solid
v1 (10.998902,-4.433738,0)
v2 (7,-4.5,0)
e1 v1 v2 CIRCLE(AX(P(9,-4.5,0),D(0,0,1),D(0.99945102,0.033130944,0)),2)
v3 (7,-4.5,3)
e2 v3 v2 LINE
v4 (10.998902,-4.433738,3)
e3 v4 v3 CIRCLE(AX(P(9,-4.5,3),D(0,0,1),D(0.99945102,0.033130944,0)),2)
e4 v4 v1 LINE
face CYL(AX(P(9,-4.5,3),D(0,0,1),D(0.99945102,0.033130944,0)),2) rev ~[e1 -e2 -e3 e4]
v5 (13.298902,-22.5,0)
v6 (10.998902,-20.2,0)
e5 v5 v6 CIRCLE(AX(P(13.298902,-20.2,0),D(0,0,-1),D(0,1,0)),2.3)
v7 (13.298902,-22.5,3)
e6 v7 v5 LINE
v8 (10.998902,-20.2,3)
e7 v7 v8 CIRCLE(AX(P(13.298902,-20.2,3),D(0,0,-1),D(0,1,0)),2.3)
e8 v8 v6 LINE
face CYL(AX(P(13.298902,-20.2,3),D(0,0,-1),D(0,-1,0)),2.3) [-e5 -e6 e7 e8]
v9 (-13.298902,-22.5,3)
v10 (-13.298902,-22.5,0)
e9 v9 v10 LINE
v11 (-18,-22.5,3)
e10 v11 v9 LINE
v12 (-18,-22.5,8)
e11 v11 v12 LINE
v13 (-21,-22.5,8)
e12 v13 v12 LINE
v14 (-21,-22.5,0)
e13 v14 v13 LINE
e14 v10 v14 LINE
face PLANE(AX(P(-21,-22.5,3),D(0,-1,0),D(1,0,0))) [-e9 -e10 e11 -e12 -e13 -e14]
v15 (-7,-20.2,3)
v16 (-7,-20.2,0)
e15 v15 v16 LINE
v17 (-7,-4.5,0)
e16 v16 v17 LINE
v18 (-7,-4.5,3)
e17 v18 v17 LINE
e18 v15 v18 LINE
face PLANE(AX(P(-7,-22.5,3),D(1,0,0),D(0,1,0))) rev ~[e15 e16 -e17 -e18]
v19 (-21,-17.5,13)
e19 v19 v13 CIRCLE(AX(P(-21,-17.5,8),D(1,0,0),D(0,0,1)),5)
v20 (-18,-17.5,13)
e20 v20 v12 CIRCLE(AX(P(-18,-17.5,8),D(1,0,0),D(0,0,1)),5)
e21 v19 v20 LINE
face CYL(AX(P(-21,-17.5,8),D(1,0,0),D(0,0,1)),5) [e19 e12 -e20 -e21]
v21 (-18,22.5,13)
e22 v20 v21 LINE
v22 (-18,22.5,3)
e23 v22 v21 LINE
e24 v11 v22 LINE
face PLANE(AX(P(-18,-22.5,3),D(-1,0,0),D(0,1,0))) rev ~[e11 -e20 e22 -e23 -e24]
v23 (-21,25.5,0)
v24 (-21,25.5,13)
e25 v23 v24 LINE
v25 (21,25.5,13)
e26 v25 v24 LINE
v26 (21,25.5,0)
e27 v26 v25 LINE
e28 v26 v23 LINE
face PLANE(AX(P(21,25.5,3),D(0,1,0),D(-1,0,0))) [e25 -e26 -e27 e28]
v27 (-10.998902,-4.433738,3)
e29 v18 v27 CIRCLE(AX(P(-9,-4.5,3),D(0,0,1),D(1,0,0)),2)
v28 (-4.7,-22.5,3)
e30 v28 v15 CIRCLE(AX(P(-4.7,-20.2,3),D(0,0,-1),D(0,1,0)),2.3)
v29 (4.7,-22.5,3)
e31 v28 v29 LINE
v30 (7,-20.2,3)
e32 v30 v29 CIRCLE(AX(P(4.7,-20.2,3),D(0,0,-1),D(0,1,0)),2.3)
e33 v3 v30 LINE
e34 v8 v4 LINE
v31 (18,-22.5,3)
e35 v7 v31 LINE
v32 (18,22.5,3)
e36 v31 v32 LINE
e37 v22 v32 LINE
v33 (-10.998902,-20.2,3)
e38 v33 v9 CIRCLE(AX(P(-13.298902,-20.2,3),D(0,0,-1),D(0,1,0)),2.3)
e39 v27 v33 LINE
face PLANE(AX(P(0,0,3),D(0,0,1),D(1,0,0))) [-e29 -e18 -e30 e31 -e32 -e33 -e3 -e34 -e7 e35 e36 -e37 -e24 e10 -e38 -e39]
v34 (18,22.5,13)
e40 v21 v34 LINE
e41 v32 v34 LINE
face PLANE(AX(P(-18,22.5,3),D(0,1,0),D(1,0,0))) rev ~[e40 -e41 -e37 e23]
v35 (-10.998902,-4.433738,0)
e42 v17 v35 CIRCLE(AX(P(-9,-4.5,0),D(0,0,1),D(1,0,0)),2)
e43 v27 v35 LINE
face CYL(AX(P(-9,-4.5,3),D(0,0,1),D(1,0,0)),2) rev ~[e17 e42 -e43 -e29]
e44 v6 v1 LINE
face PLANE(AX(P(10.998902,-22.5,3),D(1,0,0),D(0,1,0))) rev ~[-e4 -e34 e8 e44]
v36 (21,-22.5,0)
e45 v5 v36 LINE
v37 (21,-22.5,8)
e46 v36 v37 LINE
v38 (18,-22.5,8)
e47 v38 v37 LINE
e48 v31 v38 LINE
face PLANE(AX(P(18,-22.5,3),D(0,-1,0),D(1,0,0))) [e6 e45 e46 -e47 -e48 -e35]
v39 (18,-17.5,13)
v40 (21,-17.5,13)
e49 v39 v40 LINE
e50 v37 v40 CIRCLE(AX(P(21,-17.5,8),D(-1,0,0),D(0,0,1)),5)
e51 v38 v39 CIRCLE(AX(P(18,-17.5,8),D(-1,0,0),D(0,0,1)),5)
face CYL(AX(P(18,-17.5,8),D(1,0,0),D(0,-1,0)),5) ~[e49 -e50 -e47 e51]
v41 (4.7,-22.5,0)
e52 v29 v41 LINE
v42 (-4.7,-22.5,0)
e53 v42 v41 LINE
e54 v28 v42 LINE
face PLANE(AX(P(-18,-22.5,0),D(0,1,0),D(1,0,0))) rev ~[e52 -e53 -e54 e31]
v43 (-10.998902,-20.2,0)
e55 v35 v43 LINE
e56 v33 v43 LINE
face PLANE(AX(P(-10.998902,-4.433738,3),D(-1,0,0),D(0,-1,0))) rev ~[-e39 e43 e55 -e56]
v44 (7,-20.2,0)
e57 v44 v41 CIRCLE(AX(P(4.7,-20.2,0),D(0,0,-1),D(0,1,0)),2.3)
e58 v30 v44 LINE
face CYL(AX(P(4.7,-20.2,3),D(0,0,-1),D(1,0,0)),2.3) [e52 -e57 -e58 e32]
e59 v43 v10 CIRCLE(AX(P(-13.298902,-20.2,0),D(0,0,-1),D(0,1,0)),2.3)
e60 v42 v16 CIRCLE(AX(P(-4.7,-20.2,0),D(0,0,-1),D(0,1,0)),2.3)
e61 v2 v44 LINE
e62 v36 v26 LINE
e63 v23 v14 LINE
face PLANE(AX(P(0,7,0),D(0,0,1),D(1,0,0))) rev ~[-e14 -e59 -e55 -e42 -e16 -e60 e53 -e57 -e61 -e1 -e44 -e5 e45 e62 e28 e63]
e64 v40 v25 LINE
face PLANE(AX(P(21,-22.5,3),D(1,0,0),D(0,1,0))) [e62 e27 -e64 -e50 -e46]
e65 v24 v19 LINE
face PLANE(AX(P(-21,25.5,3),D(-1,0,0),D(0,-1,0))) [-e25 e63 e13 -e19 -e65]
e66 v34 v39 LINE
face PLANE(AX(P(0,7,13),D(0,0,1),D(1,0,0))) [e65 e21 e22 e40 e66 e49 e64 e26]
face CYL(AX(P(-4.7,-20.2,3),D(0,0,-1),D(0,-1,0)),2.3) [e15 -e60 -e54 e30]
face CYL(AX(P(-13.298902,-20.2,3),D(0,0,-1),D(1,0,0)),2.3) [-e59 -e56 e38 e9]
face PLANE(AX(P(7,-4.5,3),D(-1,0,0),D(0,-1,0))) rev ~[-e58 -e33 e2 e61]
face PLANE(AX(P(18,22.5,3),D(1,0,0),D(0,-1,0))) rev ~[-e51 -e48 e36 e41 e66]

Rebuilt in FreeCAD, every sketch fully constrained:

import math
import FreeCAD as App
import Part
import Sketcher
from FreeCAD import Vector
Q = App.Units.Quantity


def edges_at(feature, points):
    """Names of the edges that pass closest to the given points."""
    edges = feature.Shape.Edges
    near = lambda p: min(range(len(edges)), key=lambda i: edges[i].distToShape(Part.Vertex(*p))[0])
    return sorted({f"Edge{near(p) + 1}" for p in points})


def add_polygon(sketch, points):
    """Adds a closed chain of lines whose ends are joined by coincident constraints."""
    first, n = sketch.GeometryCount, len(points)
    for a, b in zip(points, points[1:] + points[:1]):
        sketch.addGeometry(Part.LineSegment(App.Vector(*a, 0), App.Vector(*b, 0)), False)
    for i in range(n):
        sketch.addConstraint(Sketcher.Constraint("Coincident", first + i, 2, first + (i + 1) % n, 1))

doc = App.newDocument("Part")
body = doc.addObject("PartDesign::Body", "Body")

sketch1 = doc.addObject("Sketcher::SketchObject", "Sketch")
body.addObject(sketch1)
sketch1.AttachmentSupport = (doc.XY_Plane, [""])
sketch1.MapMode = "FlatFace"
add_polygon(sketch1, [(-18, 22), (-18, -22), (18, -22), (18, 22)])
sketch1.addConstraint(Sketcher.Constraint("Vertical", 0))
sketch1.addConstraint(Sketcher.Constraint("Horizontal", 1))
sketch1.addConstraint(Sketcher.Constraint("Vertical", 2))
sketch1.addConstraint(Sketcher.Constraint("Horizontal", 3))
sketch1.addConstraint(Sketcher.Constraint("Symmetric", 0, 2, 2, 2, -1, 1))
sketch1.addConstraint(Sketcher.Constraint("DistanceX", 1, 1, 1, 2, Q("36 mm")))
sketch1.addConstraint(Sketcher.Constraint("DistanceY", 0, 2, 0, 1, Q("45 mm")))
pad1 = doc.addObject("PartDesign::Pad", "Pad")
body.addObject(pad1)
pad1.Profile = sketch1
pad1.Length = 3

sketch2 = doc.addObject("Sketcher::SketchObject", "Sketch001")
body.addObject(sketch2)
sketch2.AttachmentSupport = (doc.XY_Plane, [""])
sketch2.MapMode = "FlatFace"
sketch2.AttachmentOffset = App.Placement(Vector(0, 0, 3), App.Rotation())
sketch2.addGeometry(Part.LineSegment(Vector(-7, -22.5, 0), Vector(-7, -4.5, 0)), False)
sketch2.addGeometry(Part.ArcOfCircle(Part.Circle(Vector(-9, -4.5, 0), Vector(0, 0, 1), 2), math.radians(0), math.radians(178)), False)
sketch2.addGeometry(Part.LineSegment(Vector(-11, -4.4, 0), Vector(-11, -22.5, 0)), False)
sketch2.addGeometry(Part.LineSegment(Vector(-11, -22.5, 0), Vector(-7, -22.5, 0)), False)
sketch2.addGeometry(Part.LineSegment(Vector(7, -4.5, 0), Vector(7, -22.5, 0)), False)
sketch2.addGeometry(Part.LineSegment(Vector(7, -22.5, 0), Vector(11, -22.5, 0)), False)
sketch2.addGeometry(Part.LineSegment(Vector(11, -22.5, 0), Vector(11, -4.4, 0)), False)
sketch2.addGeometry(Part.ArcOfCircle(Part.Circle(Vector(9, -4.5, 0), Vector(0, 0, 1), 2), math.radians(2), math.radians(180)), False)
sketch2.addConstraint(Sketcher.Constraint("Tangent", 0, 2, 1, 1))
sketch2.addConstraint(Sketcher.Constraint("Coincident", 1, 2, 2, 1))
sketch2.addConstraint(Sketcher.Constraint("Coincident", 2, 2, 3, 1))
sketch2.addConstraint(Sketcher.Constraint("Coincident", 3, 2, 0, 1))
sketch2.addConstraint(Sketcher.Constraint("Coincident", 4, 2, 5, 1))
sketch2.addConstraint(Sketcher.Constraint("Coincident", 5, 2, 6, 1))
sketch2.addConstraint(Sketcher.Constraint("Coincident", 6, 2, 7, 1))
sketch2.addConstraint(Sketcher.Constraint("Tangent", 7, 2, 4, 1))
sketch2.addConstraint(Sketcher.Constraint("Vertical", 0))
sketch2.addConstraint(Sketcher.Constraint("Vertical", 2))
sketch2.addConstraint(Sketcher.Constraint("Horizontal", 3))
sketch2.addConstraint(Sketcher.Constraint("Vertical", 4))
sketch2.addConstraint(Sketcher.Constraint("Horizontal", 5))
sketch2.addConstraint(Sketcher.Constraint("Vertical", 6))
sketch2.addConstraint(Sketcher.Constraint("Equal", 1, 7))
sketch2.addConstraint(Sketcher.Constraint("Symmetric", 1, 3, 7, 3, -2))
sketch2.addConstraint(Sketcher.Constraint("Symmetric", 2, 2, 5, 2, -2))
sketch2.addConstraint(Sketcher.Constraint("Radius", 1, Q("2 mm")))
sketch2.addConstraint(Sketcher.Constraint("DistanceY", 0, 1, 0, 2, Q("18 mm")))
sketch2.addConstraint(Sketcher.Constraint("DistanceX", 1, 3, -1, 1, Q("9 mm")))
sketch2.addConstraint(Sketcher.Constraint("DistanceY", 1, 3, -1, 1, Q("4.5 mm")))
sketch2.addConstraint(Sketcher.Constraint("DistanceY", 2, 2, 2, 1, Q("18.066262 mm")))
pocket1 = doc.addObject("PartDesign::Pocket", "Pocket")
body.addObject(pocket1)
pocket1.Profile = sketch2
pocket1.Length = 3

sketch3 = doc.addObject("Sketcher::SketchObject", "Sketch002")
body.addObject(sketch3)
sketch3.AttachmentSupport = (doc.XY_Plane, [""])
sketch3.MapMode = "FlatFace"
sketch3.AttachmentOffset = App.Placement(Vector(0, 0, 3), App.Rotation())
add_polygon(sketch3, [(18, -22.5), (21, -22.5), (21, 25.5), (-21, 25.5), (-21, -22.5), (-18, -22.5), (-18, 22.5), (18, 22.5)])
sketch3.addConstraint(Sketcher.Constraint("Horizontal", 0))
sketch3.addConstraint(Sketcher.Constraint("Vertical", 1))
sketch3.addConstraint(Sketcher.Constraint("Horizontal", 2))
sketch3.addConstraint(Sketcher.Constraint("Vertical", 3))
sketch3.addConstraint(Sketcher.Constraint("Horizontal", 4))
sketch3.addConstraint(Sketcher.Constraint("Vertical", 5))
sketch3.addConstraint(Sketcher.Constraint("Horizontal", 6))
sketch3.addConstraint(Sketcher.Constraint("Vertical", 7))
sketch3.addConstraint(Sketcher.Constraint("Symmetric", 4, 2, 6, 2, -1, 1))
sketch3.addConstraint(Sketcher.Constraint("Symmetric", 0, 2, 3, 2, -2))
sketch3.addConstraint(Sketcher.Constraint("DistanceX", 0, 1, 0, 2, Q("3 mm")))
sketch3.addConstraint(Sketcher.Constraint("DistanceX", 2, 2, 2, 1, Q("41.999999 mm")))
sketch3.addConstraint(Sketcher.Constraint("DistanceY", 1, 1, 1, 2, Q("48 mm")))
sketch3.addConstraint(Sketcher.Constraint("DistanceY", 5, 1, 5, 2, Q("45 mm")))
pad2 = doc.addObject("PartDesign::Pad", "Pad001")
body.addObject(pad2)
pad2.Profile = sketch3
pad2.Type = "TwoLengths"
pad2.Length = 10
pad2.Length2 = 3
doc.recompute()

fillet = doc.addObject("PartDesign::Fillet", "Fillet")
body.addObject(fillet)
fillet.Base = (pad2, edges_at(pad2, [
    (-10.999, -22.5, 1.5),
    (-7, -22.5, 1.5),
    (7, -22.5, 1.5),
    (10.999, -22.5, 1.5),
]))
fillet.Radius = 2.3
doc.recompute()

fillet2 = doc.addObject("PartDesign::Fillet", "Fillet001")
body.addObject(fillet2)
fillet2.Base = (fillet, edges_at(fillet, [(-19.5, -22.5, 13), (19.5, -22.5, 13)]))
fillet2.Radius = 5

doc.recompute()
